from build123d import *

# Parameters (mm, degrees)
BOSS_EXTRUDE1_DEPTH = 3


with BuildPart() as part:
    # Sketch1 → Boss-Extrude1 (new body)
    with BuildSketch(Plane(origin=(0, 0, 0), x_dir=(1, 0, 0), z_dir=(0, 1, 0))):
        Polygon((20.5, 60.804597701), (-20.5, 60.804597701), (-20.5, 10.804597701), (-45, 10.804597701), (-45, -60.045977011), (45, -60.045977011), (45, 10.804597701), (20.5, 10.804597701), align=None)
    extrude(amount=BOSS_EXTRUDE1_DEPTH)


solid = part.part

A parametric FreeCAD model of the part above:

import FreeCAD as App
import Part
import Sketcher

V = App.Vector
Q = App.Units.Quantity

doc = App.newDocument("Part")
body = doc.addObject("PartDesign::Body", "Body")

sketch1 = body.newObject("Sketcher::SketchObject", "Sketch")
sketch1.AttachmentSupport = (doc.getObject("XZ_Plane"), [""])
sketch1.MapMode = "FlatFace"
sketch1.addGeometry([
    Part.LineSegment(V(20, -61, 0), V(-20, -61, 0)),
    Part.LineSegment(V(-20, -61, 0), V(-20, -11, 0)),
    Part.LineSegment(V(-20, -11, 0), V(-45, -11, 0)),
    Part.LineSegment(V(-45, -11, 0), V(-45, 60, 0)),
    Part.LineSegment(V(-45, 60, 0), V(45, 60, 0)),
    Part.LineSegment(V(45, 60, 0), V(45, -11, 0)),
    Part.LineSegment(V(45, -11, 0), V(20, -11, 0)),
    Part.LineSegment(V(20, -11, 0), V(20, -61, 0)),
], False)
sketch1.addConstraint([
    Sketcher.Constraint("Coincident", 0, 2, 1, 1),
    Sketcher.Constraint("Coincident", 1, 2, 2, 1),
    Sketcher.Constraint("Coincident", 2, 2, 3, 1),
    Sketcher.Constraint("Coincident", 3, 2, 4, 1),
    Sketcher.Constraint("Coincident", 4, 2, 5, 1),
    Sketcher.Constraint("Coincident", 5, 2, 6, 1),
    Sketcher.Constraint("Coincident", 6, 2, 7, 1),
    Sketcher.Constraint("Coincident", 7, 2, 0, 1),
    Sketcher.Constraint("Horizontal", 0),
    Sketcher.Constraint("Vertical", 1),
    Sketcher.Constraint("Horizontal", 2),
    Sketcher.Constraint("Vertical", 3),
    Sketcher.Constraint("Horizontal", 4),
    Sketcher.Constraint("Vertical", 5),
    Sketcher.Constraint("Horizontal", 6),
    Sketcher.Constraint("Vertical", 7),
    Sketcher.Constraint("Symmetric", 2, 2, 5, 2, -2),
    Sketcher.Constraint("Equal", 2, 6),
    Sketcher.Constraint("DistanceX", 0, 2, 0, 1, Q("41 mm")),
    Sketcher.Constraint("DistanceX", 4, 1, 4, 2, Q("90 mm")),
    Sketcher.Constraint("DistanceY", 1, 1, 1, 2, Q("50 mm")),
    Sketcher.Constraint("DistanceY", 3, 1, 3, 2, Q("70.850575 mm")),
    Sketcher.Constraint("DistanceY", 0, 2, -1, 1, Q("60.804598 mm")),
])
pad1 = body.newObject("PartDesign::Pad", "Pad")
pad1.Profile = sketch1
pad1.Length = 3
pad1.Reversed = True

doc.recompute()
